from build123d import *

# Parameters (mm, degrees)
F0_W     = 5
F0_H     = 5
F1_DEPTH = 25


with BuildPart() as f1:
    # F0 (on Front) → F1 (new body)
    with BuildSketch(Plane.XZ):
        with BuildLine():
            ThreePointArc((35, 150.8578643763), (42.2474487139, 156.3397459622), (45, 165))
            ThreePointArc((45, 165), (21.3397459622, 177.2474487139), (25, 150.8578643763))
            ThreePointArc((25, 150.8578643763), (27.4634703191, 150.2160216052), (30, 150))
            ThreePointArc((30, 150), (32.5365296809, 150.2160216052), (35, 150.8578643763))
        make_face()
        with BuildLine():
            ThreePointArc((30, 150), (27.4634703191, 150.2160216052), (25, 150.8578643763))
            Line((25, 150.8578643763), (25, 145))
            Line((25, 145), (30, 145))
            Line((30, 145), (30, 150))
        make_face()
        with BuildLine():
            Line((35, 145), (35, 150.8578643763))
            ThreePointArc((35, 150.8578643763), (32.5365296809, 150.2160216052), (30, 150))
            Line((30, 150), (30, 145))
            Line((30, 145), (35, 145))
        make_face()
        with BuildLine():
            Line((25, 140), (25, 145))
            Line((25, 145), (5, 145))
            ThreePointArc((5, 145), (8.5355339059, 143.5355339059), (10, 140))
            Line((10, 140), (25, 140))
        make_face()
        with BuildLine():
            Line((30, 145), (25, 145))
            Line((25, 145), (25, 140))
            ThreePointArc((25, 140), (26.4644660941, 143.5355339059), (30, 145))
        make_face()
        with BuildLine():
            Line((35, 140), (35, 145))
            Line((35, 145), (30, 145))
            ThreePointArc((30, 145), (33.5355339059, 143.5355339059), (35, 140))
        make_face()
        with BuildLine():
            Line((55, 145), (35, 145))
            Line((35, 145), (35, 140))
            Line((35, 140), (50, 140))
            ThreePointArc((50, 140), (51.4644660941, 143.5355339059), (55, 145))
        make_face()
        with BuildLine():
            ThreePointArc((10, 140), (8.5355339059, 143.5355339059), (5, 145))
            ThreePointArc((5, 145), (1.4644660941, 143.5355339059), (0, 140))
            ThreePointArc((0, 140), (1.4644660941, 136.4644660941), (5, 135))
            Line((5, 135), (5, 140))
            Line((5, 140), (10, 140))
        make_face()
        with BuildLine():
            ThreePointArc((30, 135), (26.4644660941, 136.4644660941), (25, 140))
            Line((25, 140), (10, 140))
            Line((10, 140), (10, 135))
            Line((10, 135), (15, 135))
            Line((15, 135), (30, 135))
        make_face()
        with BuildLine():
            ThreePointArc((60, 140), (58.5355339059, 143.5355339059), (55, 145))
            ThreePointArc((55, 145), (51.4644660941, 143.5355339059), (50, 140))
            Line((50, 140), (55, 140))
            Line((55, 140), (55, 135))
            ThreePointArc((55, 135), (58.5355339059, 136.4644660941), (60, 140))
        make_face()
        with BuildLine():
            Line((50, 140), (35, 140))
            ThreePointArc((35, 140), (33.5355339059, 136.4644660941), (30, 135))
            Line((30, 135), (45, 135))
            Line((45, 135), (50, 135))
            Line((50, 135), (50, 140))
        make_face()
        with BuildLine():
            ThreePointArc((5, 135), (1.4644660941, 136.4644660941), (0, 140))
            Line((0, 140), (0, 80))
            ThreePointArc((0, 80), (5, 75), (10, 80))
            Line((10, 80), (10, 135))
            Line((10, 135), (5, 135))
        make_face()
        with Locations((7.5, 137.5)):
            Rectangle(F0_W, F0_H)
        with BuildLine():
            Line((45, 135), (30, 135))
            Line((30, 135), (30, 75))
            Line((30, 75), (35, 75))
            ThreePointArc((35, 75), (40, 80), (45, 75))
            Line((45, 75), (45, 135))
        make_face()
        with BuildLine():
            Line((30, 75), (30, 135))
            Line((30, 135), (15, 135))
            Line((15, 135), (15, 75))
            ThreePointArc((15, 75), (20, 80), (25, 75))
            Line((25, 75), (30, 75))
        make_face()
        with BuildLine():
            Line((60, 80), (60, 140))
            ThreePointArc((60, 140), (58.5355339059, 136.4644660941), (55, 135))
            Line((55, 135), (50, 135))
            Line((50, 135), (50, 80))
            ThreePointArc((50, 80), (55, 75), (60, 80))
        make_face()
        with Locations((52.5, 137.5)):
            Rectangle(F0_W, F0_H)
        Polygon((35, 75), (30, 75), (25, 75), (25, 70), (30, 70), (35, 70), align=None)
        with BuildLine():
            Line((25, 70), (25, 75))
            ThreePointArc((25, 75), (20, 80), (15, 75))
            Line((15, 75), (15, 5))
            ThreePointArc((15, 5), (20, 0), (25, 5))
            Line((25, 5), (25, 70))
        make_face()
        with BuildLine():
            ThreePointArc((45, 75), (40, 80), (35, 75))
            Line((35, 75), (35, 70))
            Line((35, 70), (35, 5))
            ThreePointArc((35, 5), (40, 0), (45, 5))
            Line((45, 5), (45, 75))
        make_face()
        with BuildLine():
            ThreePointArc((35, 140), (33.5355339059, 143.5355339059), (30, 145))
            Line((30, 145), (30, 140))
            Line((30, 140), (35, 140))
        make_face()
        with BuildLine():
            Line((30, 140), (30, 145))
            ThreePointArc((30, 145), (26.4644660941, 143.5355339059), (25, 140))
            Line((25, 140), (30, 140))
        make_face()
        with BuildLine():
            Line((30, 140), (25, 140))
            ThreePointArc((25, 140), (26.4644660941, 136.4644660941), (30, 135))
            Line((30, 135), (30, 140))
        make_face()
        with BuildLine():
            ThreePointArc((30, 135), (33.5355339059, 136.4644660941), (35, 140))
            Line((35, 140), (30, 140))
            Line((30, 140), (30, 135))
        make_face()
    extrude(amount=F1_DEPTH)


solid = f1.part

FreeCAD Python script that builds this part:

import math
import FreeCAD as App
import Part
import Sketcher

V = App.Vector
Q = App.Units.Quantity

doc = App.newDocument("Part")
body = doc.addObject("PartDesign::Body", "Body")

sketch1 = doc.addObject("Sketcher::SketchObject", "Sketch")
body.addObject(sketch1)
sketch1.AttachmentSupport = (doc.XZ_Plane, [""])
sketch1.MapMode = "FlatFace"
sketch1.addGeometry([
    Part.LineSegment(V(45, 135, 0), V(50, 135, 0)),
    Part.LineSegment(V(50, 135, 0), V(50, 80, 0)),
    Part.ArcOfCircle(Part.Circle(V(55, 80, 0), V(0, 0, 1), 5), math.radians(180), math.radians(360)),
    Part.LineSegment(V(60, 80, 0), V(60, 140, 0)),
    Part.ArcOfCircle(Part.Circle(V(55, 140, 0), V(0, 0, 1), 5), math.radians(0), math.radians(90)),
    Part.LineSegment(V(55, 145, 0), V(35, 145, 0)),
    Part.LineSegment(V(35, 145, 0), V(35, 150.857864, 0)),
    Part.ArcOfCircle(Part.Circle(V(30, 165, 0), V(0, 0, 1), 15), math.radians(-70.528779), math.radians(0)),
    Part.ArcOfCircle(Part.Circle(V(30, 165, 0), V(0, 0, 1), 15), math.radians(0), math.radians(250.528779)),
    Part.LineSegment(V(25, 150.857864, 0), V(25, 145, 0)),
    Part.LineSegment(V(25, 145, 0), V(5, 145, 0)),
    Part.ArcOfCircle(Part.Circle(V(5, 140, 0), V(0, 0, 1), 5), math.radians(90), math.radians(180)),
    Part.LineSegment(V(0, 140, 0), V(0, 80, 0)),
    Part.ArcOfCircle(Part.Circle(V(5, 80, 0), V(0, 0, 1), 5), math.radians(180), math.radians(360)),
    Part.LineSegment(V(10, 80, 0), V(10, 135, 0)),
    Part.LineSegment(V(10, 135, 0), V(15, 135, 0)),
    Part.LineSegment(V(15, 135, 0), V(15, 5, 0)),
    Part.ArcOfCircle(Part.Circle(V(20, 5, 0), V(0, 0, 1), 5), math.radians(180), math.radians(360)),
    Part.LineSegment(V(25, 5, 0), V(25, 70, 0)),
    Part.LineSegment(V(25, 70, 0), V(35, 70, 0)),
    Part.LineSegment(V(35, 70, 0), V(35, 5, 0)),
    Part.ArcOfCircle(Part.Circle(V(40, 5, 0), V(0, 0, 1), 5), math.radians(180), math.radians(360)),
    Part.LineSegment(V(45, 5, 0), V(45, 135, 0)),
], False)
sketch1.addConstraint([
    Sketcher.Constraint("Coincident", 0, 2, 1, 1),
    Sketcher.Constraint("Tangent", 1, 2, 2, 1),
    Sketcher.Constraint("Tangent", 2, 2, 3, 1),
    Sketcher.Constraint("Tangent", 3, 2, 4, 1),
    Sketcher.Constraint("Tangent", 4, 2, 5, 1),
    Sketcher.Constraint("Coincident", 5, 2, 6, 1),
    Sketcher.Constraint("Coincident", 6, 2, 7, 1),
    Sketcher.Constraint("Tangent", 7, 2, 8, 1),
    Sketcher.Constraint("Coincident", 8, 2, 9, 1),
    Sketcher.Constraint("Coincident", 9, 2, 10, 1),
    Sketcher.Constraint("Tangent", 10, 2, 11, 1),
    Sketcher.Constraint("Tangent", 11, 2, 12, 1),
    Sketcher.Constraint("Tangent", 12, 2, 13, 1),
    Sketcher.Constraint("Tangent", 13, 2, 14, 1),
    Sketcher.Constraint("Coincident", 14, 2, 15, 1),
    Sketcher.Constraint("Coincident", 15, 2, 16, 1),
    Sketcher.Constraint("Tangent", 16, 2, 17, 1),
    Sketcher.Constraint("Tangent", 17, 2, 18, 1),
    Sketcher.Constraint("Coincident", 18, 2, 19, 1),
    Sketcher.Constraint("Coincident", 19, 2, 20, 1),
    Sketcher.Constraint("Tangent", 20, 2, 21, 1),
    Sketcher.Constraint("Tangent", 21, 2, 22, 1),
    Sketcher.Constraint("Coincident", 22, 2, 0, 1),
    Sketcher.Constraint("Horizontal", 0),
    Sketcher.Constraint("Vertical", 1),
    Sketcher.Constraint("Vertical", 3),
    Sketcher.Constraint("Horizontal", 5),
    Sketcher.Constraint("Vertical", 6),
    Sketcher.Constraint("Vertical", 9),
    Sketcher.Constraint("Horizontal", 10),
    Sketcher.Constraint("Vertical", 12),
    Sketcher.Constraint("Vertical", 14),
    Sketcher.Constraint("Horizontal", 15),
    Sketcher.Constraint("Vertical", 16),
    Sketcher.Constraint("Vertical", 18),
    Sketcher.Constraint("Horizontal", 19),
    Sketcher.Constraint("Vertical", 20),
    Sketcher.Constraint("Vertical", 22),
    Sketcher.Constraint("Equal", 2, 4),
    Sketcher.Constraint("Equal", 7, 8),
    Sketcher.Constraint("Equal", 4, 11),
    Sketcher.Constraint("Equal", 11, 13),
    Sketcher.Constraint("Equal", 13, 17),
    Sketcher.Constraint("Equal", 17, 21),
    Sketcher.Constraint("PointOnObject", 11, 2, -2),
    Sketcher.Constraint("Horizontal", 4, 3, 11, 3),
    Sketcher.Constraint("Horizontal", 2, 3, 13, 3),
    Sketcher.Constraint("Horizontal", 17, 3, 21, 3),
    Sketcher.Constraint("Horizontal", 8, 3, 7, 2),
    Sketcher.Constraint("Horizontal", 6, 2, 8, 2),
    Sketcher.Constraint("Horizontal", 0, 2, 14, 2),
    Sketcher.Constraint("Vertical", 9, 2, 17, 2),
    Sketcher.Constraint("Vertical", 6, 2, 19, 2),
    Sketcher.Constraint("Vertical", 7, 2, 21, 2),
    Sketcher.Constraint("Equal", 5, 10),
    Sketcher.Constraint("Radius", 2, Q("5 mm")),
    Sketcher.Constraint("Radius", 7, Q("15 mm")),
    Sketcher.Constraint("DistanceX", 0, 1, 0, 2, Q("5 mm")),
    Sketcher.Constraint("DistanceY", 1, 2, 1, 1, Q("55 mm")),
    Sketcher.Constraint("DistanceY", 3, 1, 3, 2, Q("60 mm")),
    Sketcher.Constraint("DistanceY", 16, 2, 16, 1, Q("130 mm")),
    Sketcher.Constraint("DistanceY", 18, 1, 18, 2, Q("65 mm")),
    Sketcher.Constraint("DistanceY", -1, 1, 2, 3, Q("80 mm")),
    Sketcher.Constraint("DistanceY", -1, 1, 7, 3, Q("165 mm")),
])
pad1 = doc.addObject("PartDesign::Pad", "Pad")
body.addObject(pad1)
pad1.Profile = sketch1
pad1.Length = 25

doc.recompute()
